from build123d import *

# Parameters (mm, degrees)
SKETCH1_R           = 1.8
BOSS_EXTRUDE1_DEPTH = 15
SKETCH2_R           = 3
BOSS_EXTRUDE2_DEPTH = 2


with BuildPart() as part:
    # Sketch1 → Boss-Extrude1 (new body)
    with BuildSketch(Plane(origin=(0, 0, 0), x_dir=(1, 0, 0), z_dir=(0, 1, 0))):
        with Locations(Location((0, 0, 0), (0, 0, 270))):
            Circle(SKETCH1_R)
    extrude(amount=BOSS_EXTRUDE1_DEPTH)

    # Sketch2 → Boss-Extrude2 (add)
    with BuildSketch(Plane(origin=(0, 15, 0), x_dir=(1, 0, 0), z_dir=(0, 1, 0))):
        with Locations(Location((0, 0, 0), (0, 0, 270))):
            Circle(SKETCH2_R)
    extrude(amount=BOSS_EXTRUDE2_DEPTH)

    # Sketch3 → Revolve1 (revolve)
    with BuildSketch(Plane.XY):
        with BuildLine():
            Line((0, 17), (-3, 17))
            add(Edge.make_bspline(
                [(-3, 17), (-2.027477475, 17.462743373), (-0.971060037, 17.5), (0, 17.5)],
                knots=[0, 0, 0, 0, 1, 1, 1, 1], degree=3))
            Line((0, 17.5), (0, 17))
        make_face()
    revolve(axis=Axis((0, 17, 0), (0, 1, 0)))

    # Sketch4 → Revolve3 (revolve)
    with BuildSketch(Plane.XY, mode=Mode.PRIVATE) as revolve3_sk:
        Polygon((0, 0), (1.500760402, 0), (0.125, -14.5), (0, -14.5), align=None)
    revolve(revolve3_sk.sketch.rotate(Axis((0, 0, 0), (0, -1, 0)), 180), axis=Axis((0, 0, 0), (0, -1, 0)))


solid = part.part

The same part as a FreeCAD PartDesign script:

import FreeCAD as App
import Part
import Sketcher

V = App.Vector
Q = App.Units.Quantity

doc = App.newDocument("Part")
body = doc.addObject("PartDesign::Body", "Body")

# Sketch on XZ plane
sketch1 = body.newObject("Sketcher::SketchObject", "Sketch")
sketch1.AttachmentSupport = (doc.getObject("XZ_Plane"), [""])
sketch1.MapMode = "FlatFace"
sketch1.addGeometry(Part.Circle(V(0, 0, 0), V(0, 0, 1), 1.8), False)
sketch1.addConstraint([
    Sketcher.Constraint("Coincident", 0, 3, -1, 1),
    Sketcher.Constraint("Diameter", 0, Q("3.6 mm")),
])
pad1 = body.newObject("PartDesign::Pad", "Pad")
pad1.Profile = sketch1
pad1.Length = 15
pad1.Reversed = True

# Sketch on XZ plane
sketch2 = body.newObject("Sketcher::SketchObject", "Sketch001")
sketch2.AttachmentSupport = (doc.getObject("XZ_Plane"), [""])
sketch2.MapMode = "FlatFace"
sketch2.AttachmentOffset = App.Placement(V(0, 0, -15), App.Rotation())
sketch2.addGeometry(Part.Circle(V(0, 0, 0), V(0, 0, 1), 3), False)
sketch2.addConstraint([
    Sketcher.Constraint("Coincident", 0, 3, -1, 1),
    Sketcher.Constraint("Diameter", 0, Q("6 mm")),
])
pad2 = body.newObject("PartDesign::Pad", "Pad001")
pad2.Profile = sketch2
pad2.Length = 2
pad2.Reversed = True

# Sketch on XY plane
sketch3 = body.newObject("Sketcher::SketchObject", "Sketch002")
sketch3.AttachmentSupport = (doc.getObject("XY_Plane"), [""])
sketch3.MapMode = "FlatFace"
sketch3.addGeometry([
    Part.LineSegment(V(-3, 17, 0), V(0, 17, 0)),
    Part.LineSegment(V(0, 17, 0), V(0, 17.5, 0)),
    Part.BSplineCurve([V(-3, 17, 0), V(-2.027477, 17.462743, 0), V(-0.97106, 17.5, 0), V(0, 17.5, 0)], [4, 4], [0, 1], False, 3, [1, 1, 1, 1], False),
], False)
sketch3.addConstraint([
    Sketcher.Constraint("Block", 2),
    Sketcher.Constraint("Coincident", 0, 2, 1, 1),
    Sketcher.Constraint("Coincident", 1, 2, 2, 2),
    Sketcher.Constraint("Coincident", 2, 1, 0, 1),
    Sketcher.Constraint("Horizontal", 0),
    Sketcher.Constraint("Vertical", 1),
])
revolution = body.newObject("PartDesign::Revolution", "Revolution")
revolution.Profile = sketch3
revolution.ReferenceAxis = (sketch3, ["V_Axis"])
revolution.Angle = 360

# Sketch on XY plane
sketch4 = body.newObject("Sketcher::SketchObject", "Sketch003")
sketch4.AttachmentSupport = (doc.getObject("XY_Plane"), [""])
sketch4.MapMode = "FlatFace"
sketch4.addGeometry([
    Part.LineSegment(V(1.5, 0, 0), V(0, 0, 0)),
    Part.LineSegment(V(0, 0, 0), V(0, -14.5, 0)),
    Part.LineSegment(V(0, -14.5, 0), V(0.12, -14.5, 0)),
    Part.LineSegment(V(0.12, -14.5, 0), V(1.5, 0, 0)),
], False)
sketch4.addConstraint([
    Sketcher.Constraint("Coincident", 0, 2, 1, 1),
    Sketcher.Constraint("Coincident", 1, 2, 2, 1),
    Sketcher.Constraint("Coincident", 2, 2, 3, 1),
    Sketcher.Constraint("Coincident", 3, 2, 0, 1),
    Sketcher.Constraint("Horizontal", 0),
    Sketcher.Constraint("Vertical", 1),
    Sketcher.Constraint("Horizontal", 2),
    Sketcher.Constraint("Coincident", 0, 2, -1, 1),
    Sketcher.Constraint("DistanceY", 1, 2, 1, 1, Q("14.5 mm")),
    Sketcher.Constraint("Angle", 3, Q("84.58 deg")),
    Sketcher.Constraint("DistanceX", 2, 1, 2, 2, Q("0.125 mm")),
])
revolution2 = body.newObject("PartDesign::Revolution", "Revolution001")
revolution2.Profile = sketch4
revolution2.ReferenceAxis = (sketch4, ["V_Axis"])
revolution2.Angle = 360

doc.recompute()
